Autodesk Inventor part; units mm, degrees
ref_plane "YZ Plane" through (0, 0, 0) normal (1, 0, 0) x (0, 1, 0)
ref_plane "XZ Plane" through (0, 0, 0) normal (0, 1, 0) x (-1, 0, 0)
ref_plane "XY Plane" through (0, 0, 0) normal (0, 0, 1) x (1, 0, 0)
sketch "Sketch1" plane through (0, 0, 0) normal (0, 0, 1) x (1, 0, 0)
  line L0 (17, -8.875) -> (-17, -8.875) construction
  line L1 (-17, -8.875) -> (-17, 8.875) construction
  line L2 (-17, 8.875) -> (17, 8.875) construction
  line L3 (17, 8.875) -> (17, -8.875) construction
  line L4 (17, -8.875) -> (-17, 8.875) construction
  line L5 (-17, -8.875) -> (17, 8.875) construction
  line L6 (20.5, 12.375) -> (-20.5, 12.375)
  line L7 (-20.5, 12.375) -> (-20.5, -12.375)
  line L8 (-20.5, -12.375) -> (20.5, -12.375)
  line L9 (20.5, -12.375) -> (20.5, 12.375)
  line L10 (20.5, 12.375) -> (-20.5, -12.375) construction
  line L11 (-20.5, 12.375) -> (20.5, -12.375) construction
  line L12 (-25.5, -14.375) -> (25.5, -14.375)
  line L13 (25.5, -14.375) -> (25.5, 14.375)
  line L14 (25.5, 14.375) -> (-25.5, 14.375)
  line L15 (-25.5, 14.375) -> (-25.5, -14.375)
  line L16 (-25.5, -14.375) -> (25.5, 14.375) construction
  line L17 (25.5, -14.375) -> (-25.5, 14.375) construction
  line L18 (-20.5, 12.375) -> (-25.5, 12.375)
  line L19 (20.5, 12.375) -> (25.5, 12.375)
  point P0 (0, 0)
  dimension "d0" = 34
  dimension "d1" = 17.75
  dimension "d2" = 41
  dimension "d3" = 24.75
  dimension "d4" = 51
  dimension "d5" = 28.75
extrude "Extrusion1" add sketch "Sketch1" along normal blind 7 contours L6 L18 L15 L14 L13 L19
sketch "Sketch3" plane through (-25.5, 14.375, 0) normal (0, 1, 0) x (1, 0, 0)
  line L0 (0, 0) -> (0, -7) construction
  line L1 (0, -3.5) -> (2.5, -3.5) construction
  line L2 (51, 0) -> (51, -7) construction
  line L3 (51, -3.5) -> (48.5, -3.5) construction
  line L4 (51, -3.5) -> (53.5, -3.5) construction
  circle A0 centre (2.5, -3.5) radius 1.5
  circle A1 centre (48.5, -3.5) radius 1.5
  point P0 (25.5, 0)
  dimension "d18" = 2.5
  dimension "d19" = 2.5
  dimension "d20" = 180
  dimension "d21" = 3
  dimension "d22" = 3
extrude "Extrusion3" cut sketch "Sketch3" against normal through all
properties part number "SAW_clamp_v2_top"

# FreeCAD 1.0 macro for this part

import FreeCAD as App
import Part
import Sketcher

doc = App.newDocument("Part")
params = doc.addObject("Spreadsheet::Sheet", "Params")
for row, (alias, value) in enumerate([
    ("sketch1_width", "51 mm"),
    ("sketch1_height", "2 mm"),
    ("pad1_length", "7 mm"),
    ("sketch2_diameter", "3 mm"),
], start=1):
    params.set(f"A{row}", alias)
    params.set(f"B{row}", "=" + value)
    params.setAlias(f"B{row}", alias)

body = doc.addObject("PartDesign::Body", "Body")

# Sketch on XY plane
sketch1 = body.newObject("Sketcher::SketchObject", "Sketch")
sketch1.AttachmentSupport = (doc.getObject("XY_Plane"), [""])
sketch1.MapMode = "FlatFace"
sketch1.addGeometry(Part.LineSegment(App.Vector(-25.5, 12.4, 0), App.Vector(25.5, 12.4, 0)), False)
sketch1.addGeometry(Part.LineSegment(App.Vector(25.5, 12.4, 0), App.Vector(25.5, 14.4, 0)), False)
sketch1.addGeometry(Part.LineSegment(App.Vector(25.5, 14.4, 0), App.Vector(-25.5, 14.4, 0)), False)
sketch1.addGeometry(Part.LineSegment(App.Vector(-25.5, 14.4, 0), App.Vector(-25.5, 12.4, 0)), False)
sketch1.addConstraint(Sketcher.Constraint("Coincident", 0, 2, 1, 1))
sketch1.addConstraint(Sketcher.Constraint("Coincident", 1, 2, 2, 1))
sketch1.addConstraint(Sketcher.Constraint("Coincident", 2, 2, 3, 1))
sketch1.addConstraint(Sketcher.Constraint("Coincident", 3, 2, 0, 1))
sketch1.addConstraint(Sketcher.Constraint("Horizontal", 0))
sketch1.addConstraint(Sketcher.Constraint("Vertical", 1))
sketch1.addConstraint(Sketcher.Constraint("Horizontal", 2))
sketch1.addConstraint(Sketcher.Constraint("Vertical", 3))
sketch1.addConstraint(Sketcher.Constraint("DistanceX", 0, 1, 0, 2, 51.0))
sketch1.addConstraint(Sketcher.Constraint("DistanceY", 1, 1, 1, 2, 2.0))
sketch1.addConstraint(Sketcher.Constraint("DistanceX", -1, 1, 0, 2, 25.5))
sketch1.addConstraint(Sketcher.Constraint("DistanceY", -1, 1, 0, 2, 12.375))
sketch1.setExpression("Constraints[8]", "Params.sketch1_width")
sketch1.setExpression("Constraints[9]", "Params.sketch1_height")
pad1 = body.newObject("PartDesign::Pad", "Pad")
pad1.Profile = sketch1
pad1.setExpression("Length", "Params.pad1_length")

# Sketch on XZ plane
sketch2 = body.newObject("Sketcher::SketchObject", "Sketch001")
sketch2.AttachmentSupport = (doc.getObject("XZ_Plane"), [""])
sketch2.MapMode = "FlatFace"
sketch2.AttachmentOffset = App.Placement(App.Vector(0, 0, -14.375), App.Rotation())
sketch2.addGeometry(Part.Circle(App.Vector(-23, 3.5, 0), App.Vector(0, 0, 1), 1.5), False)
sketch2.addGeometry(Part.Circle(App.Vector(23, 3.5, 0), App.Vector(0, 0, 1), 1.5), False)
sketch2.addConstraint(Sketcher.Constraint("Equal", 0, 1))
sketch2.addConstraint(Sketcher.Constraint("Symmetric", 0, 3, 1, 3, -2))
sketch2.addConstraint(Sketcher.Constraint("Diameter", 0, 3.0))
sketch2.addConstraint(Sketcher.Constraint("DistanceX", 0, 3, -1, 1, 23.0))
sketch2.addConstraint(Sketcher.Constraint("DistanceY", -1, 1, 0, 3, 3.5))
sketch2.setExpression("Constraints[2]", "Params.sketch2_diameter")
pocket1 = body.newObject("PartDesign::Pocket", "Pocket")
pocket1.Profile = sketch2
pocket1.Type = "ThroughAll"
pocket1.Reversed = True

doc.recompute()
